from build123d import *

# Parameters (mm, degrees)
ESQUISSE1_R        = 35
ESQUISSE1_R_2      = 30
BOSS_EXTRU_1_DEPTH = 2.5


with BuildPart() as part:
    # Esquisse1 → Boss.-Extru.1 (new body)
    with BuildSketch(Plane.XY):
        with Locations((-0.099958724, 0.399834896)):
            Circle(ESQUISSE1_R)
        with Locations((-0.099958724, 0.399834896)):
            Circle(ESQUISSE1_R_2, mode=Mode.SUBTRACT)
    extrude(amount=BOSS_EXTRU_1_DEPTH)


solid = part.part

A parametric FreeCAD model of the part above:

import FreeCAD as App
import Part
import Sketcher

doc = App.newDocument("Part")
params = doc.addObject("Spreadsheet::Sheet", "Params")
for row, (alias, value) in enumerate([
    ("sketch1_diameter", "70 mm"),
    ("sketch1_diameter2", "60 mm"),
    ("pad1_length", "2.5 mm"),
], start=1):
    params.set(f"A{row}", alias)
    params.set(f"B{row}", "=" + value)
    params.setAlias(f"B{row}", alias)

body = doc.addObject("PartDesign::Body", "Body")

sketch1 = body.newObject("Sketcher::SketchObject", "Sketch")
sketch1.AttachmentSupport = (doc.getObject("XY_Plane"), [""])
sketch1.MapMode = "FlatFace"
sketch1.addGeometry([
    Part.Circle(App.Vector(-0.099959, 0.399835, 0), App.Vector(0, 0, 1), 35),
    Part.Circle(App.Vector(-0.099959, 0.399835, 0), App.Vector(0, 0, 1), 30),
], False)
sketch1.addConstraint([
    Sketcher.Constraint("Coincident", 1, 3, 0, 3),
    Sketcher.Constraint("Diameter", 0, 70.0),
    Sketcher.Constraint("Diameter", 1, 60.0),
    Sketcher.Constraint("DistanceX", 0, 3, -1, 1, 0.099959),
    Sketcher.Constraint("DistanceY", -1, 1, 0, 3, 0.399835),
])
sketch1.setExpression("Constraints[1]", "Params.sketch1_diameter")
sketch1.setExpression("Constraints[2]", "Params.sketch1_diameter2")
pad1 = body.newObject("PartDesign::Pad", "Pad")
pad1.Profile = sketch1
pad1.setExpression("Length", "Params.pad1_length")

doc.recompute()
